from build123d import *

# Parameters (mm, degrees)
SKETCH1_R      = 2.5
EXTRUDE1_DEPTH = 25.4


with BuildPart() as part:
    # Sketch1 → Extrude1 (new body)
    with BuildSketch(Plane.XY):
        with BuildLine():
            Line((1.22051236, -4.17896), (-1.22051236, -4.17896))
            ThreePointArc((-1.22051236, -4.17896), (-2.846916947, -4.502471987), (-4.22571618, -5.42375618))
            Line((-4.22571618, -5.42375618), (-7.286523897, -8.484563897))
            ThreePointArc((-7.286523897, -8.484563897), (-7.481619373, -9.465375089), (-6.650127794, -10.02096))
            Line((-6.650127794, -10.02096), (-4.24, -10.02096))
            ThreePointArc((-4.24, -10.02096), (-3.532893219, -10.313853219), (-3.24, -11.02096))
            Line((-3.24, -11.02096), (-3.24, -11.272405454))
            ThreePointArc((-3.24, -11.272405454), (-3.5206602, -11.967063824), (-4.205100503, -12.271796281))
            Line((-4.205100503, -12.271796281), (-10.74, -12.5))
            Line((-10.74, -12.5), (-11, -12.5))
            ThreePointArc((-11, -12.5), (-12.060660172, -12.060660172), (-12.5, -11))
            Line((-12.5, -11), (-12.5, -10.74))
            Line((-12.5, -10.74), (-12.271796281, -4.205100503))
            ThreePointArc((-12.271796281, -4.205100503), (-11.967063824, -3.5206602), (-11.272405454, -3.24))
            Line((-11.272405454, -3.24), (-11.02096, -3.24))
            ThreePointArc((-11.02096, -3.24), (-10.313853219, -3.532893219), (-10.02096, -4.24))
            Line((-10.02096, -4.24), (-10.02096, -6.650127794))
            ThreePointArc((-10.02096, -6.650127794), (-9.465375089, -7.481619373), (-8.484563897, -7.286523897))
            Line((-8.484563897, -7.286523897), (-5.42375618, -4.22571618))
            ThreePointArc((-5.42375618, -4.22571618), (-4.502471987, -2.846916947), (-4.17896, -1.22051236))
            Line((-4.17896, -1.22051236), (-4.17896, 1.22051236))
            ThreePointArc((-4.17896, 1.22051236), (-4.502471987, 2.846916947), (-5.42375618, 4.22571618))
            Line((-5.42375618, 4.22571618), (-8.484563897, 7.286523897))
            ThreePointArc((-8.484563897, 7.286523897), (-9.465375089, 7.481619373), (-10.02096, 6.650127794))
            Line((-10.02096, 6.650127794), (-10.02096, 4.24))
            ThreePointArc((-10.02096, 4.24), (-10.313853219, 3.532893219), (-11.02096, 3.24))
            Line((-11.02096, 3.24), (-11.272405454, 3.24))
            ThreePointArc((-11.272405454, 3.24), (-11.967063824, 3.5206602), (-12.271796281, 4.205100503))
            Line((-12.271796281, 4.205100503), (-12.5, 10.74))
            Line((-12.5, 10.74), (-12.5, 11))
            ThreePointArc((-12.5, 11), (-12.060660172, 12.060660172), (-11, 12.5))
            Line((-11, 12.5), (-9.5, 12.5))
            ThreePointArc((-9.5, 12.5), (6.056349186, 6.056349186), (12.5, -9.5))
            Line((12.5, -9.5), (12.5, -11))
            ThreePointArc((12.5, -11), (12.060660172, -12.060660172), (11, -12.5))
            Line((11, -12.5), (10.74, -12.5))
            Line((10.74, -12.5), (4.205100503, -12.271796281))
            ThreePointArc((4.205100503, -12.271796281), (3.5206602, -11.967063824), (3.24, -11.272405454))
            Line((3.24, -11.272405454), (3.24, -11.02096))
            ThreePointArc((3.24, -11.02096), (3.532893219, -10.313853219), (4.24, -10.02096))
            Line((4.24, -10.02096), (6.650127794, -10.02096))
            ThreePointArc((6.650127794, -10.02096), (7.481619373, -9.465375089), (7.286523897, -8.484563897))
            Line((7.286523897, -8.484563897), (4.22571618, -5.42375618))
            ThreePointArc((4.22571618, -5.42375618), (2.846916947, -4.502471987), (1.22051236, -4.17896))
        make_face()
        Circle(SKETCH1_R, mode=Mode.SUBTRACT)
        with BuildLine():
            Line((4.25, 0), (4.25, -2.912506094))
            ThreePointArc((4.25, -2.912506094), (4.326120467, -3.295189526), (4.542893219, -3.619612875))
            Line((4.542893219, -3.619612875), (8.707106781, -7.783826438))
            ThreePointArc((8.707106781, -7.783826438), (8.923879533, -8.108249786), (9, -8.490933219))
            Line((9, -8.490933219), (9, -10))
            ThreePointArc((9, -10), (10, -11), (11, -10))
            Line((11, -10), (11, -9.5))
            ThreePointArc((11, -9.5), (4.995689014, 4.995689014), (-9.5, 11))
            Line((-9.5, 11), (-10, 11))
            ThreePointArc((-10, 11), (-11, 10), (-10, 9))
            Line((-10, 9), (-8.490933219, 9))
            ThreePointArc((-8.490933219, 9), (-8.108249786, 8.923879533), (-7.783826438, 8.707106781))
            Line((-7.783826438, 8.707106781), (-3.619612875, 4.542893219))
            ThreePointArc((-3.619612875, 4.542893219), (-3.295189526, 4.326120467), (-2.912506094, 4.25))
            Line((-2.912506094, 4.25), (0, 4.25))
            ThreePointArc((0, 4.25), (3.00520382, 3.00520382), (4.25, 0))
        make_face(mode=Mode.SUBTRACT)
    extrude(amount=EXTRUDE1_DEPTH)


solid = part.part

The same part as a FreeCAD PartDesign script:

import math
import FreeCAD as App
import Part
import Sketcher
from FreeCAD import Vector
Q = App.Units.Quantity

doc = App.newDocument("Part")
body = doc.addObject("PartDesign::Body", "Body")

# Sketch on XY plane
sketch1 = body.newObject("Sketcher::SketchObject", "Sketch")
sketch1.AttachmentSupport = (doc.getObject("XY_Plane"), [""])
sketch1.MapMode = "FlatFace"
sketch1.addGeometry([
    Part.LineSegment(Vector(-1.22, -4.18, 0), Vector(1.22, -4.18, 0)),  # 0
    Part.ArcOfCircle(Part.Circle(Vector(1.22, -8.43, 0), Vector(0, 0, 1), 4.25), math.radians(45), math.radians(90)),  # 1
    Part.LineSegment(Vector(4.23, -5.42, 0), Vector(7.29, -8.48, 0)),  # 2
    Part.ArcOfCircle(Part.Circle(Vector(6.65, -9.12, 0), Vector(0, 0, 1), 0.9), math.radians(-90), math.radians(45)),  # 3
    Part.LineSegment(Vector(6.65, -10.02, 0), Vector(4.24, -10.02, 0)),  # 4
    Part.ArcOfCircle(Part.Circle(Vector(4.24, -11.02, 0), Vector(0, 0, 1), 1), math.radians(90), math.radians(180)),  # 5
    Part.LineSegment(Vector(3.24, -11.02, 0), Vector(3.24, -11.27, 0)),  # 6
    Part.ArcOfCircle(Part.Circle(Vector(4.24, -11.27, 0), Vector(0, 0, 1), 1), math.radians(-180), math.radians(-92)),  # 7
    Part.LineSegment(Vector(4.21, -12.27, 0), Vector(10.74, -12.5, 0)),  # 8
    Part.LineSegment(Vector(10.74, -12.5, 0), Vector(11, -12.5, 0)),  # 9
    Part.ArcOfCircle(Part.Circle(Vector(11, -11, 0), Vector(0, 0, 1), 1.5), math.radians(-90), math.radians(0)),  # 10
    Part.LineSegment(Vector(12.5, -11, 0), Vector(12.5, -9.5, 0)),  # 11
    Part.ArcOfCircle(Part.Circle(Vector(-9.5, -9.5, 0), Vector(0, 0, 1), 22), math.radians(0), math.radians(90)),  # 12
    Part.LineSegment(Vector(-9.5, 12.5, 0), Vector(-11, 12.5, 0)),  # 13
    Part.ArcOfCircle(Part.Circle(Vector(-11, 11, 0), Vector(0, 0, 1), 1.5), math.radians(90), math.radians(180)),  # 14
    Part.LineSegment(Vector(-12.5, 11, 0), Vector(-12.5, 10.74, 0)),  # 15
    Part.LineSegment(Vector(-12.5, 10.74, 0), Vector(-12.27, 4.21, 0)),  # 16
    Part.ArcOfCircle(Part.Circle(Vector(-11.27, 4.24, 0), Vector(0, 0, 1), 1), math.radians(-178), math.radians(-90)),  # 17
    Part.LineSegment(Vector(-11.27, 3.24, 0), Vector(-11.02, 3.24, 0)),  # 18
    Part.ArcOfCircle(Part.Circle(Vector(-11.02, 4.24, 0), Vector(0, 0, 1), 1), math.radians(-90), math.radians(0)),  # 19
    Part.LineSegment(Vector(-10.02, 4.24, 0), Vector(-10.02, 6.65, 0)),  # 20
    Part.ArcOfCircle(Part.Circle(Vector(-9.12, 6.65, 0), Vector(0, 0, 1), 0.9), math.radians(45), math.radians(180)),  # 21
    Part.LineSegment(Vector(-8.48, 7.29, 0), Vector(-5.42, 4.23, 0)),  # 22
    Part.ArcOfCircle(Part.Circle(Vector(-8.43, 1.22, 0), Vector(0, 0, 1), 4.25), math.radians(0), math.radians(45)),  # 23
    Part.LineSegment(Vector(-4.18, 1.22, 0), Vector(-4.18, -1.22, 0)),  # 24
    Part.ArcOfCircle(Part.Circle(Vector(-8.43, -1.22, 0), Vector(0, 0, 1), 4.25), math.radians(-45), math.radians(0)),  # 25
    Part.LineSegment(Vector(-5.42, -4.23, 0), Vector(-8.48, -7.29, 0)),  # 26
    Part.ArcOfCircle(Part.Circle(Vector(-9.12, -6.65, 0), Vector(0, 0, 1), 0.9), math.radians(180), math.radians(315)),  # 27
    Part.LineSegment(Vector(-10.02, -6.65, 0), Vector(-10.02, -4.24, 0)),  # 28
    Part.ArcOfCircle(Part.Circle(Vector(-11.02, -4.24, 0), Vector(0, 0, 1), 1), math.radians(0), math.radians(90)),  # 29
    Part.LineSegment(Vector(-11.02, -3.24, 0), Vector(-11.27, -3.24, 0)),  # 30
    Part.ArcOfCircle(Part.Circle(Vector(-11.27, -4.24, 0), Vector(0, 0, 1), 1), math.radians(90), math.radians(178)),  # 31
    Part.LineSegment(Vector(-12.27, -4.21, 0), Vector(-12.5, -10.74, 0)),  # 32
    Part.LineSegment(Vector(-12.5, -10.74, 0), Vector(-12.5, -11, 0)),  # 33
    Part.ArcOfCircle(Part.Circle(Vector(-11, -11, 0), Vector(0, 0, 1), 1.5), math.radians(180), math.radians(270)),  # 34
    Part.LineSegment(Vector(-11, -12.5, 0), Vector(-10.74, -12.5, 0)),  # 35
    Part.LineSegment(Vector(-10.74, -12.5, 0), Vector(-4.21, -12.27, 0)),  # 36
    Part.ArcOfCircle(Part.Circle(Vector(-4.24, -11.27, 0), Vector(0, 0, 1), 1), math.radians(-88), math.radians(0)),  # 37
    Part.LineSegment(Vector(-3.24, -11.27, 0), Vector(-3.24, -11.02, 0)),  # 38
    Part.ArcOfCircle(Part.Circle(Vector(-4.24, -11.02, 0), Vector(0, 0, 1), 1), math.radians(0), math.radians(90)),  # 39
    Part.LineSegment(Vector(-4.24, -10.02, 0), Vector(-6.65, -10.02, 0)),  # 40
    Part.ArcOfCircle(Part.Circle(Vector(-6.65, -9.12, 0), Vector(0, 0, 1), 0.9), math.radians(135), math.radians(270)),  # 41
    Part.LineSegment(Vector(-7.29, -8.48, 0), Vector(-4.23, -5.42, 0)),  # 42
    Part.ArcOfCircle(Part.Circle(Vector(-1.22, -8.43, 0), Vector(0, 0, 1), 4.25), math.radians(90), math.radians(135)),  # 43
    Part.Circle(Vector(0, 0, 0), Vector(0, 0, 1), 2.5),  # 44
    Part.ArcOfCircle(Part.Circle(Vector(0, 0, 0), Vector(0, 0, 1), 4.25), math.radians(0), math.radians(90)),  # 45
    Part.LineSegment(Vector(0, 4.25, 0), Vector(-2.91, 4.25, 0)),  # 46
    Part.ArcOfCircle(Part.Circle(Vector(-2.91, 5.25, 0), Vector(0, 0, 1), 1), math.radians(-135), math.radians(-90)),  # 47
    Part.LineSegment(Vector(-3.62, 4.54, 0), Vector(-7.78, 8.71, 0)),  # 48
    Part.ArcOfCircle(Part.Circle(Vector(-8.49, 8, 0), Vector(0, 0, 1), 1), math.radians(45), math.radians(90)),  # 49
    Part.LineSegment(Vector(-8.49, 9, 0), Vector(-10, 9, 0)),  # 50
    Part.ArcOfCircle(Part.Circle(Vector(-10, 10, 0), Vector(0, 0, 1), 1), math.radians(90), math.radians(270)),  # 51
    Part.LineSegment(Vector(-10, 11, 0), Vector(-9.5, 11, 0)),  # 52
    Part.ArcOfCircle(Part.Circle(Vector(-9.5, -9.5, 0), Vector(0, 0, 1), 20.5), math.radians(0), math.radians(90)),  # 53
    Part.LineSegment(Vector(11, -9.5, 0), Vector(11, -10, 0)),  # 54
    Part.ArcOfCircle(Part.Circle(Vector(10, -10, 0), Vector(0, 0, 1), 1), math.radians(180), math.radians(360)),  # 55
    Part.LineSegment(Vector(9, -10, 0), Vector(9, -8.49, 0)),  # 56
    Part.ArcOfCircle(Part.Circle(Vector(8, -8.49, 0), Vector(0, 0, 1), 1), math.radians(0), math.radians(45)),  # 57
    Part.LineSegment(Vector(8.71, -7.78, 0), Vector(4.54, -3.62, 0)),  # 58
    Part.ArcOfCircle(Part.Circle(Vector(5.25, -2.91, 0), Vector(0, 0, 1), 1), math.radians(180), math.radians(225)),  # 59
    Part.LineSegment(Vector(4.25, -2.91, 0), Vector(4.25, 0, 0)),  # 60
], False)
sketch1.addConstraint([
    Sketcher.Constraint("Tangent", 0, 2, 1, 2),
    Sketcher.Constraint("Tangent", 1, 1, 2, 1),
    Sketcher.Constraint("Tangent", 2, 2, 3, 2),
    Sketcher.Constraint("Tangent", 3, 1, 4, 1),
    Sketcher.Constraint("Tangent", 4, 2, 5, 1),
    Sketcher.Constraint("Tangent", 5, 2, 6, 1),
    Sketcher.Constraint("Tangent", 6, 2, 7, 1),
    Sketcher.Constraint("Tangent", 7, 2, 8, 1),
    Sketcher.Constraint("Coincident", 8, 2, 9, 1),
    Sketcher.Constraint("Tangent", 9, 2, 10, 1),
    Sketcher.Constraint("Tangent", 10, 2, 11, 1),
    Sketcher.Constraint("Tangent", 11, 2, 12, 1),
    Sketcher.Constraint("Tangent", 12, 2, 13, 1),
    Sketcher.Constraint("Tangent", 13, 2, 14, 1),
    Sketcher.Constraint("Tangent", 14, 2, 15, 1),
    Sketcher.Constraint("Coincident", 15, 2, 16, 1),
    Sketcher.Constraint("Tangent", 16, 2, 17, 1),
    Sketcher.Constraint("Tangent", 17, 2, 18, 1),
    Sketcher.Constraint("Tangent", 18, 2, 19, 1),
    Sketcher.Constraint("Tangent", 19, 2, 20, 1),
    Sketcher.Constraint("Tangent", 20, 2, 21, 2),
    Sketcher.Constraint("Tangent", 21, 1, 22, 1),
    Sketcher.Constraint("Tangent", 22, 2, 23, 2),
    Sketcher.Constraint("Tangent", 23, 1, 24, 1),
    Sketcher.Constraint("Tangent", 24, 2, 25, 2),
    Sketcher.Constraint("Tangent", 25, 1, 26, 1),
    Sketcher.Constraint("Tangent", 26, 2, 27, 2),
    Sketcher.Constraint("Tangent", 27, 1, 28, 1),
    Sketcher.Constraint("Tangent", 28, 2, 29, 1),
    Sketcher.Constraint("Tangent", 29, 2, 30, 1),
    Sketcher.Constraint("Tangent", 30, 2, 31, 1),
    Sketcher.Constraint("Tangent", 31, 2, 32, 1),
    Sketcher.Constraint("Coincident", 32, 2, 33, 1),
    Sketcher.Constraint("Tangent", 33, 2, 34, 1),
    Sketcher.Constraint("Tangent", 34, 2, 35, 1),
    Sketcher.Constraint("Coincident", 35, 2, 36, 1),
    Sketcher.Constraint("Tangent", 36, 2, 37, 1),
    Sketcher.Constraint("Tangent", 37, 2, 38, 1),
    Sketcher.Constraint("Tangent", 38, 2, 39, 1),
    Sketcher.Constraint("Tangent", 39, 2, 40, 1),
    Sketcher.Constraint("Tangent", 40, 2, 41, 2),
    Sketcher.Constraint("Tangent", 41, 1, 42, 1),
    Sketcher.Constraint("Tangent", 42, 2, 43, 2),
    Sketcher.Constraint("Tangent", 43, 1, 0, 1),
    Sketcher.Constraint("Tangent", 45, 2, 46, 1),
    Sketcher.Constraint("Tangent", 46, 2, 47, 2),
    Sketcher.Constraint("Tangent", 47, 1, 48, 1),
    Sketcher.Constraint("Tangent", 48, 2, 49, 1),
    Sketcher.Constraint("Tangent", 49, 2, 50, 1),
    Sketcher.Constraint("Tangent", 50, 2, 51, 2),
    Sketcher.Constraint("Tangent", 51, 1, 52, 1),
    Sketcher.Constraint("Tangent", 52, 2, 53, 2),
    Sketcher.Constraint("Tangent", 53, 1, 54, 1),
    Sketcher.Constraint("Tangent", 54, 2, 55, 2),
    Sketcher.Constraint("Tangent", 55, 1, 56, 1),
    Sketcher.Constraint("Tangent", 56, 2, 57, 1),
    Sketcher.Constraint("Tangent", 57, 2, 58, 1),
    Sketcher.Constraint("Tangent", 58, 2, 59, 2),
    Sketcher.Constraint("Tangent", 59, 1, 60, 1),
    Sketcher.Constraint("Tangent", 60, 2, 45, 1),
    Sketcher.Constraint("Horizontal", 0),
    Sketcher.Constraint("Horizontal", 4),
    Sketcher.Constraint("Vertical", 6),
    Sketcher.Constraint("Horizontal", 9),
    Sketcher.Constraint("Vertical", 11),
    Sketcher.Constraint("Horizontal", 13),
    Sketcher.Constraint("Vertical", 15),
    Sketcher.Constraint("Horizontal", 18),
    Sketcher.Constraint("Vertical", 20),
    Sketcher.Constraint("Vertical", 24),
    Sketcher.Constraint("Vertical", 28),
    Sketcher.Constraint("Horizontal", 30),
    Sketcher.Constraint("Vertical", 33),
    Sketcher.Constraint("Horizontal", 35),
    Sketcher.Constraint("Vertical", 38),
    Sketcher.Constraint("Horizontal", 40),
    Sketcher.Constraint("Horizontal", 46),
    Sketcher.Constraint("Horizontal", 50),
    Sketcher.Constraint("Horizontal", 52),
    Sketcher.Constraint("Vertical", 54),
    Sketcher.Constraint("Vertical", 56),
    Sketcher.Constraint("Vertical", 60),
    Sketcher.Constraint("Coincident", 44, 3, -1, 1),
    Sketcher.Constraint("Coincident", 45, 3, -1, 1),
    Sketcher.Constraint("Coincident", 53, 3, 12, 3),
    Sketcher.Constraint("Equal", 5, 7),
    Sketcher.Constraint("Equal", 10, 14),
    Sketcher.Constraint("Equal", 7, 17),
    Sketcher.Constraint("Equal", 17, 19),
    Sketcher.Constraint("Equal", 3, 21),
    Sketcher.Constraint("Equal", 1, 23),
    Sketcher.Constraint("Equal", 23, 25),
    Sketcher.Constraint("Equal", 21, 27),
    Sketcher.Constraint("Equal", 19, 29),
    Sketcher.Constraint("Equal", 29, 31),
    Sketcher.Constraint("Equal", 14, 34),
    Sketcher.Constraint("Equal", 31, 37),
    Sketcher.Constraint("Equal", 37, 39),
    Sketcher.Constraint("Equal", 27, 41),
    Sketcher.Constraint("Equal", 25, 43),
    Sketcher.Constraint("Equal", 43, 45),
    Sketcher.Constraint("Equal", 39, 47),
    Sketcher.Constraint("Equal", 47, 49),
    Sketcher.Constraint("Equal", 49, 51),
    Sketcher.Constraint("Equal", 51, 55),
    Sketcher.Constraint("Equal", 55, 57),
    Sketcher.Constraint("Equal", 57, 59),
    Sketcher.Constraint("Symmetric", 10, 3, 14, 3, -1, 1),
    Sketcher.Constraint("Symmetric", 51, 3, 55, 3, -1, 1),
    Sketcher.Constraint("Symmetric", 10, 3, 34, 3, -2),
    Sketcher.Constraint("Symmetric", 7, 3, 37, 3, -2),
    Sketcher.Constraint("Symmetric", 3, 3, 41, 3, -2),
    Sketcher.Constraint("Symmetric", 21, 3, 27, 3, -1),
    Sketcher.Constraint("Symmetric", 17, 3, 31, 3, -1),
    Sketcher.Constraint("Parallel", 2, 22),
    Sketcher.Constraint("Perpendicular", 22, 26),
    Sketcher.Constraint("Perpendicular", 8, 32),
    Sketcher.Constraint("Perpendicular", 16, 36),
    Sketcher.Constraint("Parallel", 26, 42),
    Sketcher.Constraint("Perpendicular", 42, 48),
    Sketcher.Constraint("Parallel", 48, 58),
    Sketcher.Constraint("Horizontal", 2, 2, 41, 1),
    Sketcher.Constraint("Horizontal", 14, 2, 51, 1),
    Sketcher.Constraint("Equal", 9, 35),
    Sketcher.Constraint("Equal", 30, 6),
    Sketcher.Constraint("Equal", 13, 11),
    Sketcher.Constraint("Equal", 35, 15),
    Sketcher.Constraint("Equal", 40, 20),
    Sketcher.Constraint("Equal", 0, 24),
    Sketcher.Constraint("Equal", 50, 56),
    Sketcher.Constraint("Equal", 8, 16),
    Sketcher.Constraint("Diameter", 44, 5.0),
    Sketcher.Constraint("Radius", 5, 1.0),
    Sketcher.Constraint("Radius", 12, 22.0),
    Sketcher.Constraint("Radius", 3, 0.9),
    Sketcher.Constraint("Radius", 10, 1.5),
    Sketcher.Constraint("Angle", 8, Q("-2 deg")),
    Sketcher.Constraint("Radius", 1, 4.25),
    Sketcher.Constraint("DistanceX", 13, 2, 13, 1, 1.5),
    Sketcher.Constraint("DistanceX", 9, 1, 9, 2, 0.26),
    Sketcher.Constraint("DistanceX", -1, 1, 5, 3, 4.24),
    Sketcher.Constraint("DistanceX", 0, 1, 0, 2, 2.441025),
    Sketcher.Constraint("DistanceX", 4, 2, 4, 1, 2.410128),
    Sketcher.Constraint("DistanceX", 18, 1, 18, 2, 0.251445),
    Sketcher.Constraint("DistanceX", 46, 2, 46, 1, 2.912506),
])
pad1 = body.newObject("PartDesign::Pad", "Pad")
pad1.Profile = sketch1
pad1.Length = 25.4

doc.recompute()
